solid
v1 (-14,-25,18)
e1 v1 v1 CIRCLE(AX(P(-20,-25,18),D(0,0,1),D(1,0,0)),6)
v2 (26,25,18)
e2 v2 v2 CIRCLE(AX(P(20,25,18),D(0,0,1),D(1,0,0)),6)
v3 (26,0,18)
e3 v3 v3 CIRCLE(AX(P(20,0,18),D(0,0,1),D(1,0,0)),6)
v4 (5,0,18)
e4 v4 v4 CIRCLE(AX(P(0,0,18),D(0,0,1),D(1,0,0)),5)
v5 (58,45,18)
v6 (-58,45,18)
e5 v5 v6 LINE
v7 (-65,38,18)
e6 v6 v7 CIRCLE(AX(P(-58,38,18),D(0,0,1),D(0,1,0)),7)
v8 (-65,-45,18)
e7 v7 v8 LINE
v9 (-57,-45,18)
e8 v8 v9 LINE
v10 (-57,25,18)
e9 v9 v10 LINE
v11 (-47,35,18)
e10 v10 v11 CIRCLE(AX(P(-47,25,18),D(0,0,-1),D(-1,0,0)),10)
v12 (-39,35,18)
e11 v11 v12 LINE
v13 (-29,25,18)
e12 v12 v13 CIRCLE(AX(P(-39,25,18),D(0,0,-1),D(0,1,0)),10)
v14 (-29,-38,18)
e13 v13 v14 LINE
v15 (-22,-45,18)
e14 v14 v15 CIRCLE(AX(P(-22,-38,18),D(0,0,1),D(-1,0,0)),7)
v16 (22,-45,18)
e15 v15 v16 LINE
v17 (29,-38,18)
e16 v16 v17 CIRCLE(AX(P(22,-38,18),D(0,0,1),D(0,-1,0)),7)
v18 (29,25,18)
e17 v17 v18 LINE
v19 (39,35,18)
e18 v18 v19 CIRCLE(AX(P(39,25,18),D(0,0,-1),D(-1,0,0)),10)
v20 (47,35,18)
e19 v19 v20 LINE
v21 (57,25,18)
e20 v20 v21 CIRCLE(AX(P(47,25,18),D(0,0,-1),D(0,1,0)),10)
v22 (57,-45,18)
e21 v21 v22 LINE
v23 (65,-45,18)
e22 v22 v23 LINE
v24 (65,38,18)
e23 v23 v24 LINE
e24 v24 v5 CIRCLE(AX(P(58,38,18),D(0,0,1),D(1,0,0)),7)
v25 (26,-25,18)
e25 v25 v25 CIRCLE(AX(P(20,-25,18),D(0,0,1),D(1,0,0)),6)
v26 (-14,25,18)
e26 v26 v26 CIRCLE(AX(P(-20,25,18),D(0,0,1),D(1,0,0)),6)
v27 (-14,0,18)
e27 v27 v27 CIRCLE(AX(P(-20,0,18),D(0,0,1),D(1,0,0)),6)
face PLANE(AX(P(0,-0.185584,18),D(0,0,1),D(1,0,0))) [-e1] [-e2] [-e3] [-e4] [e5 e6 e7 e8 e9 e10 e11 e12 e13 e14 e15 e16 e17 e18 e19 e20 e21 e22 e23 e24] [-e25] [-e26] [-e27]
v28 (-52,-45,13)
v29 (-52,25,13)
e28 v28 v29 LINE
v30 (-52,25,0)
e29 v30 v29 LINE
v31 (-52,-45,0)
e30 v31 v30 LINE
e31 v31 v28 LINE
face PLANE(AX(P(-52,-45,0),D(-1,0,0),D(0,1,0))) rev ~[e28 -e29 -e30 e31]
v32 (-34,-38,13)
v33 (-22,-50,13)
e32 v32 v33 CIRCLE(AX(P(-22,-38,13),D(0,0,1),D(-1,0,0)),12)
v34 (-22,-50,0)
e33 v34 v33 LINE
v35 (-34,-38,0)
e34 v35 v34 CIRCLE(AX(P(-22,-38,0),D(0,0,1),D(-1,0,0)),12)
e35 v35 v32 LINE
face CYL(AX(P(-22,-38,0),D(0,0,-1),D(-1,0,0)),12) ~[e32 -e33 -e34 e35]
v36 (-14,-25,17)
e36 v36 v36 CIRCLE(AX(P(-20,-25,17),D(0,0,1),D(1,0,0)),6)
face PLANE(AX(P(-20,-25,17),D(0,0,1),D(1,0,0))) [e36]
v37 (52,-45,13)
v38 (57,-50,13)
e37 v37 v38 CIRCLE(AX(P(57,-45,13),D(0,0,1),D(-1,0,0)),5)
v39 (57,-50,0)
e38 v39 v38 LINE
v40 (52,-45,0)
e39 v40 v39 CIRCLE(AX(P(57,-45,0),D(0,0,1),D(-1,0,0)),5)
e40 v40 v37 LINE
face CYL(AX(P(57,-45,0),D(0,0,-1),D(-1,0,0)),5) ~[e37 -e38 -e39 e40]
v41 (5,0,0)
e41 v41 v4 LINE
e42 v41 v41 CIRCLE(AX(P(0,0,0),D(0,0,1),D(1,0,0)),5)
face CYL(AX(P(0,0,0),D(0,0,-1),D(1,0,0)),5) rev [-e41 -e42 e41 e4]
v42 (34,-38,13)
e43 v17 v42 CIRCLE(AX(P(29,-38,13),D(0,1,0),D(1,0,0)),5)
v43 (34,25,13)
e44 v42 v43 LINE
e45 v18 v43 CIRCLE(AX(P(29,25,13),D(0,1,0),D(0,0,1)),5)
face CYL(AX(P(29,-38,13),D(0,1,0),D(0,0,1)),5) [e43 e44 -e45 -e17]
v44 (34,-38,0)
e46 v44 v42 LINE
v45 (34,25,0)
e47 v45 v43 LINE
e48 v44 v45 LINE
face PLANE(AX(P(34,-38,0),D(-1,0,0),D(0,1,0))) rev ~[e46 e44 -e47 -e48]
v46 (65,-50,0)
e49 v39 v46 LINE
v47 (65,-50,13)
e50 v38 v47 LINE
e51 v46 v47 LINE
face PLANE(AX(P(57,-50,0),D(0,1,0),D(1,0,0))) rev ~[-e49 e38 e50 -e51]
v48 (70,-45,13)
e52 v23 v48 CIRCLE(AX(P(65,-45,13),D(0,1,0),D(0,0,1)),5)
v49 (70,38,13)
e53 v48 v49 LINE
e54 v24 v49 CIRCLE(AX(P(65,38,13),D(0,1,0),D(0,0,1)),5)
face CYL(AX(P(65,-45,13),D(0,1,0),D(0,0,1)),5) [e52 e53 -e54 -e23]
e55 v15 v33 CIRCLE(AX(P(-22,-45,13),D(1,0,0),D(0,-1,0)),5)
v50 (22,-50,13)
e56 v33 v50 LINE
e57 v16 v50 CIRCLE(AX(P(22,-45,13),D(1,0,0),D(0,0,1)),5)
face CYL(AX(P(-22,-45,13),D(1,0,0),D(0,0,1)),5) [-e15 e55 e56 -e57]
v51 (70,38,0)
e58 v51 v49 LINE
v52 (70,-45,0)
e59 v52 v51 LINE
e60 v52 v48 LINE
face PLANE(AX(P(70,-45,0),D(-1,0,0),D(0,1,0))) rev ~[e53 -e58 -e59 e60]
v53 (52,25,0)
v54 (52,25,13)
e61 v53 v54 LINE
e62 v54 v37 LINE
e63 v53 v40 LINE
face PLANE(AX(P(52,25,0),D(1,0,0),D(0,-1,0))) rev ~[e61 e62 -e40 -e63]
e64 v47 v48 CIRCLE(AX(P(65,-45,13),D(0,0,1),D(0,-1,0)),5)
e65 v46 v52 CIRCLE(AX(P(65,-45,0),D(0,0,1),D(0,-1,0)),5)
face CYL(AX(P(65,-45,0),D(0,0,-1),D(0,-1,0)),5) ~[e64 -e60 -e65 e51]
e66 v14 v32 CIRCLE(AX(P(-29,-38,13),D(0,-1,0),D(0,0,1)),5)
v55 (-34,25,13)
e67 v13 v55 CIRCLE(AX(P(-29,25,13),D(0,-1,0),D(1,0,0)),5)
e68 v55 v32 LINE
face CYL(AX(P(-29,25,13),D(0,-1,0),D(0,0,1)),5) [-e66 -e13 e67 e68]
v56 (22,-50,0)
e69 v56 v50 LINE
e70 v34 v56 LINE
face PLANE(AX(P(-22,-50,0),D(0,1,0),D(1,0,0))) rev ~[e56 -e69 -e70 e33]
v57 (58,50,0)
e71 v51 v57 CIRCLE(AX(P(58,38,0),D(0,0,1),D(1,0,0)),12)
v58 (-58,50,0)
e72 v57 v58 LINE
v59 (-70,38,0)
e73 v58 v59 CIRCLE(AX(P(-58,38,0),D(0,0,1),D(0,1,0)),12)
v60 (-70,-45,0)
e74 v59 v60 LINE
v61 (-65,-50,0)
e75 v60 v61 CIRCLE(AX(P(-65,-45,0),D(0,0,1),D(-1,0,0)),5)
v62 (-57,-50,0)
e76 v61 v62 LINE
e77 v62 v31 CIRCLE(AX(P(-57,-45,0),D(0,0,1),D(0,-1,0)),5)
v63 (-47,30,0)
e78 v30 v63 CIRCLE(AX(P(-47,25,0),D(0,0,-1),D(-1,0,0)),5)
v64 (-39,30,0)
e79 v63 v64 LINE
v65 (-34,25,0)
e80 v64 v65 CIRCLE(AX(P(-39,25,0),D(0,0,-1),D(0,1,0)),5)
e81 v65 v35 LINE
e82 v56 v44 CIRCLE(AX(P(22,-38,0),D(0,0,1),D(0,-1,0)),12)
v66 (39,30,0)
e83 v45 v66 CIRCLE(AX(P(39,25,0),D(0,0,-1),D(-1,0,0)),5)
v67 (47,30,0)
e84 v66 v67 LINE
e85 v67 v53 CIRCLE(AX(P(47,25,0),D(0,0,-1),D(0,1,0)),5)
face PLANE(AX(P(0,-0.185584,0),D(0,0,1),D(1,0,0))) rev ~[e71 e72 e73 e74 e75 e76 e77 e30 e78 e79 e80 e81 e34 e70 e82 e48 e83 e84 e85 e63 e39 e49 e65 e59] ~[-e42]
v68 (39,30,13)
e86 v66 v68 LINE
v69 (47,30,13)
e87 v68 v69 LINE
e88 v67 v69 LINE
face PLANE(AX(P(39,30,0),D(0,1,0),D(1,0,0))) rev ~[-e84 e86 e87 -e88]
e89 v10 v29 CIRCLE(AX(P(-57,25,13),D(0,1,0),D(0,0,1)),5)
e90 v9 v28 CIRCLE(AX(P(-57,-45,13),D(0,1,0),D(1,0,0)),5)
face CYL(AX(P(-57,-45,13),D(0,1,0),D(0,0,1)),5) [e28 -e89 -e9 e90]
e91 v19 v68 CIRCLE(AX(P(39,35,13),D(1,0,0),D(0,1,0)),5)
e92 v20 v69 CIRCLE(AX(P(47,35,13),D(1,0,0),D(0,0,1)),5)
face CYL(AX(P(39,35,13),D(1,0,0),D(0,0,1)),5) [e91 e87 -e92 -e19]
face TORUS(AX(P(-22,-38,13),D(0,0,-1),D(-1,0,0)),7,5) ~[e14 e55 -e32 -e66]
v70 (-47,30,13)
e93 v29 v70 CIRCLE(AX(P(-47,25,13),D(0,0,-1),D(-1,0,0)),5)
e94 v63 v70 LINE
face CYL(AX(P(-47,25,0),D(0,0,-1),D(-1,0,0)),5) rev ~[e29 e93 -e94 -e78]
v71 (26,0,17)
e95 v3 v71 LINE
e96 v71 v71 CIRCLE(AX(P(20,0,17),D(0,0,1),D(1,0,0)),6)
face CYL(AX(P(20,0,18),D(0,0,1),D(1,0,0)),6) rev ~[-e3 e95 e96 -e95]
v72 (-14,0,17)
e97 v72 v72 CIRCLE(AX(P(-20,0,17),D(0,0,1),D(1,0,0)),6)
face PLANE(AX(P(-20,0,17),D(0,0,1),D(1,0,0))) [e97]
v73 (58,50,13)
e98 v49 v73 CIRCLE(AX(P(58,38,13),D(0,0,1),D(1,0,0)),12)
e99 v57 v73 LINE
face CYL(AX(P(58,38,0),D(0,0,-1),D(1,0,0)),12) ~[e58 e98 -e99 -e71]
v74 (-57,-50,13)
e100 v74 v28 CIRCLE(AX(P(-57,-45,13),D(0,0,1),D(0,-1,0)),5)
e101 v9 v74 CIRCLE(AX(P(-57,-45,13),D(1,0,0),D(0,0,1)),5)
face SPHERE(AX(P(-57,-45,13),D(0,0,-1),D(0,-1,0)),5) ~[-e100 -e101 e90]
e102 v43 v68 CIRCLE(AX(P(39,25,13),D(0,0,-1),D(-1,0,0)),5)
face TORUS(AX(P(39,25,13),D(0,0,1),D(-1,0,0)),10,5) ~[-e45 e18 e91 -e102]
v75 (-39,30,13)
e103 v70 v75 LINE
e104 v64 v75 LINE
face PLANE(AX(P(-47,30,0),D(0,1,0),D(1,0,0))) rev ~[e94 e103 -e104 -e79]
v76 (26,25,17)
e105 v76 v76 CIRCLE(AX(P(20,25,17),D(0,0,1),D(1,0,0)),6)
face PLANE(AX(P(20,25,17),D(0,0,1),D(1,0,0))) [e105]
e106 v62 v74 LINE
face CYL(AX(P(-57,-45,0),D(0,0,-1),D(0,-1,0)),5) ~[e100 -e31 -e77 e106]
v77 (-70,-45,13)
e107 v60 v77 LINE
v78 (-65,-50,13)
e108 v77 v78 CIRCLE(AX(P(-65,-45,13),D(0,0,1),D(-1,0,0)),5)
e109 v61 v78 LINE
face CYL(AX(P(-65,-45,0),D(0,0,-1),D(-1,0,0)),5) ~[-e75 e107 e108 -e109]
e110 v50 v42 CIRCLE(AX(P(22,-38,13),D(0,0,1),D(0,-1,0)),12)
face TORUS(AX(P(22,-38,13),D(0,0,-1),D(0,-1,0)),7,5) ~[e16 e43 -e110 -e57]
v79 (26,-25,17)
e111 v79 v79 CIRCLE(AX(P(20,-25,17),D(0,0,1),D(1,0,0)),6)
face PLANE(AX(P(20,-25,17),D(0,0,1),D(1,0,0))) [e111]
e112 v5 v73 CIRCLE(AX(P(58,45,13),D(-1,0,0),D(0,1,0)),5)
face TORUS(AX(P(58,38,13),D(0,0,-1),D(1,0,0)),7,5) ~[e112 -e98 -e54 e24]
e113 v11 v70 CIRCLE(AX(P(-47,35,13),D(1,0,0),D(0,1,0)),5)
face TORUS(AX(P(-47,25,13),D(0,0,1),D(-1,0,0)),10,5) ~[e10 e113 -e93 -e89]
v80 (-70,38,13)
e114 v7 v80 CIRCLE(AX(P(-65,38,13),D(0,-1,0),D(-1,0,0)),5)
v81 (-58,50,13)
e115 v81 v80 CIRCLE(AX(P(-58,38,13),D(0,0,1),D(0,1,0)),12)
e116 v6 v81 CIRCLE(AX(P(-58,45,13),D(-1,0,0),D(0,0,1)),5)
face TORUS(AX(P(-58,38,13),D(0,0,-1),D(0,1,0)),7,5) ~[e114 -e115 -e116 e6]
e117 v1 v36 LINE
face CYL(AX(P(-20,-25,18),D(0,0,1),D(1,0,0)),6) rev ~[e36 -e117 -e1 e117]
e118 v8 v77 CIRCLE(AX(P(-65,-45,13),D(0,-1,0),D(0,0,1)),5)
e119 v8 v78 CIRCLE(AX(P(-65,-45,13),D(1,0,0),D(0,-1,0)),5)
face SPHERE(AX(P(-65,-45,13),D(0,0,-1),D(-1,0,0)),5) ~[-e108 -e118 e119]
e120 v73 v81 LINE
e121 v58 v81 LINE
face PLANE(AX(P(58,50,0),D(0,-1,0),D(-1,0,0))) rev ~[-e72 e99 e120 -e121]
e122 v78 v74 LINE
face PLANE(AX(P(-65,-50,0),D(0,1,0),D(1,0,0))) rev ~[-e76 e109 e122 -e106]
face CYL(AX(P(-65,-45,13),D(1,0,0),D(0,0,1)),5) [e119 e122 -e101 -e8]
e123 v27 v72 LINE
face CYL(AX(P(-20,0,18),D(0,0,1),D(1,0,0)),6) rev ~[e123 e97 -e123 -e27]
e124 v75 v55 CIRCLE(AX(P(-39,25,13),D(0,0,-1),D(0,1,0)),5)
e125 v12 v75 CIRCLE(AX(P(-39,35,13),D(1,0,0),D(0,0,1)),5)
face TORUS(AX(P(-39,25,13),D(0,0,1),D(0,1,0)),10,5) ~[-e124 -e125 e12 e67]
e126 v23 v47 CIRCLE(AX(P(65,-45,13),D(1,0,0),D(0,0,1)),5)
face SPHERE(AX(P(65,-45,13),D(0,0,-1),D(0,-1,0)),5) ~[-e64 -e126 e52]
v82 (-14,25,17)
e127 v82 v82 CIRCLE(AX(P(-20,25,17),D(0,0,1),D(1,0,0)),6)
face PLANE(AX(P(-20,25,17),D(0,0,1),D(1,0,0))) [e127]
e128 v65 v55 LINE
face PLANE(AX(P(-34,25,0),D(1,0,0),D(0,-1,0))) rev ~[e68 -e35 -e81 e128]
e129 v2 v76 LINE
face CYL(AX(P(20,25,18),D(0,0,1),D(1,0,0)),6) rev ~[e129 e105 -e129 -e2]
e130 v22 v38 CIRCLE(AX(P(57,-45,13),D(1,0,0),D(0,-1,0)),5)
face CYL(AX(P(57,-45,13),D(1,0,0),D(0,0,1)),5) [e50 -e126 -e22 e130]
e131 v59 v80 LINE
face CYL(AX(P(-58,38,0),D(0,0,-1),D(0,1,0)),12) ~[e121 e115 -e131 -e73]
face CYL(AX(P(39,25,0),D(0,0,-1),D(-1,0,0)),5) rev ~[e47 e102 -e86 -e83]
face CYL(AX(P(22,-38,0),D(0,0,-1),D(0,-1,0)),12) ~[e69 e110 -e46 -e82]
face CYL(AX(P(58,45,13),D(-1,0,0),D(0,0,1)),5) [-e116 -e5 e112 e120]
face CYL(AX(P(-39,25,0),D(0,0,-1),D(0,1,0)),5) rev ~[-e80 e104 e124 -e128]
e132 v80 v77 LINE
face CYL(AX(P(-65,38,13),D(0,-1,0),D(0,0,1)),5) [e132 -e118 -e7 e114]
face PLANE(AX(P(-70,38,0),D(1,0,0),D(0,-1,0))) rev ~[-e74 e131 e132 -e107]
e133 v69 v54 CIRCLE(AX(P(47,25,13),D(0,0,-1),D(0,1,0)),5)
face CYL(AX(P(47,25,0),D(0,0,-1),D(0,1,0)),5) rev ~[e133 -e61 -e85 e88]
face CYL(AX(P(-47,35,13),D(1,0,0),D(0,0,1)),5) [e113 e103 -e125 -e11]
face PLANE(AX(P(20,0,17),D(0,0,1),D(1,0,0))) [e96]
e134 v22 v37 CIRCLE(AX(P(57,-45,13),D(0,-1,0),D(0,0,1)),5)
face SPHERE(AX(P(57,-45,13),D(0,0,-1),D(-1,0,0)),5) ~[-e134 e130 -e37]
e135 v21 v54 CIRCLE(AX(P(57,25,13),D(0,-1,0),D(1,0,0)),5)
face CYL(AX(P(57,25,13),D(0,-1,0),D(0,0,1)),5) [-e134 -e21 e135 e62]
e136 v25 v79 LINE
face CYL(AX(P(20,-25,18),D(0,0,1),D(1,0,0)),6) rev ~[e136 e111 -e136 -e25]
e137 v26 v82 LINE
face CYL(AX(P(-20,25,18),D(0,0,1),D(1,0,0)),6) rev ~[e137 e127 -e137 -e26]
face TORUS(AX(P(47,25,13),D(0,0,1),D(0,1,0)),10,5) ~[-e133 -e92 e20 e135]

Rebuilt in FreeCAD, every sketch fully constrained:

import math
import FreeCAD as App
import Part
import Sketcher
from FreeCAD import Vector
Q = App.Units.Quantity


def edges_at(feature, points):
    """Names of the edges that pass closest to the given points."""
    edges = feature.Shape.Edges
    near = lambda p: min(range(len(edges)), key=lambda i: edges[i].distToShape(Part.Vertex(*p))[0])
    return sorted({f"Edge{near(p) + 1}" for p in points})

doc = App.newDocument("Part")
body = doc.addObject("PartDesign::Body", "Body")

sketch1 = doc.addObject("Sketcher::SketchObject", "Sketch")
body.addObject(sketch1)
sketch1.AttachmentSupport = (doc.XY_Plane, [""])
sketch1.MapMode = "FlatFace"
sketch1.addGeometry([
    Part.ArcOfCircle(Part.Circle(Vector(22, -38, 0), Vector(0, 0, 1), 12), math.radians(-90), math.radians(0)),
    Part.LineSegment(Vector(34, -38, 0), Vector(34, 25, 0)),
    Part.ArcOfCircle(Part.Circle(Vector(39, 25, 0), Vector(0, 0, 1), 5), math.radians(90), math.radians(180)),
    Part.LineSegment(Vector(39, 30, 0), Vector(47, 30, 0)),
    Part.ArcOfCircle(Part.Circle(Vector(47, 25, 0), Vector(0, 0, 1), 5), math.radians(0), math.radians(90)),
    Part.LineSegment(Vector(52, 25, 0), Vector(52, -45, 0)),
    Part.ArcOfCircle(Part.Circle(Vector(57, -45, 0), Vector(0, 0, 1), 5), math.radians(180), math.radians(270)),
    Part.LineSegment(Vector(57, -50, 0), Vector(65, -50, 0)),
    Part.ArcOfCircle(Part.Circle(Vector(65, -45, 0), Vector(0, 0, 1), 5), math.radians(-90), math.radians(0)),
    Part.LineSegment(Vector(70, -45, 0), Vector(70, 38, 0)),
    Part.ArcOfCircle(Part.Circle(Vector(58, 38, 0), Vector(0, 0, 1), 12), math.radians(0), math.radians(90)),
    Part.LineSegment(Vector(58, 50, 0), Vector(-58, 50, 0)),
    Part.ArcOfCircle(Part.Circle(Vector(-58, 38, 0), Vector(0, 0, 1), 12), math.radians(90), math.radians(180)),
    Part.LineSegment(Vector(-70, 38, 0), Vector(-70, -45, 0)),
    Part.ArcOfCircle(Part.Circle(Vector(-65, -45, 0), Vector(0, 0, 1), 5), math.radians(180), math.radians(270)),
    Part.LineSegment(Vector(-65, -50, 0), Vector(-57, -50, 0)),
    Part.ArcOfCircle(Part.Circle(Vector(-57, -45, 0), Vector(0, 0, 1), 5), math.radians(-90), math.radians(0)),
    Part.LineSegment(Vector(-52, -45, 0), Vector(-52, 25, 0)),
    Part.ArcOfCircle(Part.Circle(Vector(-47, 25, 0), Vector(0, 0, 1), 5), math.radians(90), math.radians(180)),
    Part.LineSegment(Vector(-47, 30, 0), Vector(-39, 30, 0)),
    Part.ArcOfCircle(Part.Circle(Vector(-39, 25, 0), Vector(0, 0, 1), 5), math.radians(0), math.radians(90)),
    Part.LineSegment(Vector(-34, 25, 0), Vector(-34, -38, 0)),
    Part.ArcOfCircle(Part.Circle(Vector(-22, -38, 0), Vector(0, 0, 1), 12), math.radians(180), math.radians(270)),
    Part.LineSegment(Vector(-22, -50, 0), Vector(22, -50, 0)),
    Part.Circle(Vector(0, 0, 0), Vector(0, 0, 1), 5),
], False)
sketch1.addConstraint([
    Sketcher.Constraint("Tangent", 0, 2, 1, 1),
    Sketcher.Constraint("Tangent", 1, 2, 2, 2),
    Sketcher.Constraint("Tangent", 2, 1, 3, 1),
    Sketcher.Constraint("Tangent", 3, 2, 4, 2),
    Sketcher.Constraint("Tangent", 4, 1, 5, 1),
    Sketcher.Constraint("Tangent", 5, 2, 6, 1),
    Sketcher.Constraint("Tangent", 6, 2, 7, 1),
    Sketcher.Constraint("Tangent", 7, 2, 8, 1),
    Sketcher.Constraint("Tangent", 8, 2, 9, 1),
    Sketcher.Constraint("Tangent", 9, 2, 10, 1),
    Sketcher.Constraint("Tangent", 10, 2, 11, 1),
    Sketcher.Constraint("Tangent", 11, 2, 12, 1),
    Sketcher.Constraint("Tangent", 12, 2, 13, 1),
    Sketcher.Constraint("Tangent", 13, 2, 14, 1),
    Sketcher.Constraint("Tangent", 14, 2, 15, 1),
    Sketcher.Constraint("Tangent", 15, 2, 16, 1),
    Sketcher.Constraint("Tangent", 16, 2, 17, 1),
    Sketcher.Constraint("Tangent", 17, 2, 18, 2),
    Sketcher.Constraint("Tangent", 18, 1, 19, 1),
    Sketcher.Constraint("Tangent", 19, 2, 20, 2),
    Sketcher.Constraint("Tangent", 20, 1, 21, 1),
    Sketcher.Constraint("Tangent", 21, 2, 22, 1),
    Sketcher.Constraint("Tangent", 22, 2, 23, 1),
    Sketcher.Constraint("Tangent", 23, 2, 0, 1),
    Sketcher.Constraint("Vertical", 1),
    Sketcher.Constraint("Horizontal", 3),
    Sketcher.Constraint("Vertical", 5),
    Sketcher.Constraint("Horizontal", 7),
    Sketcher.Constraint("Vertical", 9),
    Sketcher.Constraint("Horizontal", 11),
    Sketcher.Constraint("Vertical", 13),
    Sketcher.Constraint("Horizontal", 15),
    Sketcher.Constraint("Vertical", 17),
    Sketcher.Constraint("Horizontal", 19),
    Sketcher.Constraint("Vertical", 21),
    Sketcher.Constraint("Horizontal", 23),
    Sketcher.Constraint("Coincident", 24, 3, -1, 1),
    Sketcher.Constraint("Equal", 2, 4),
    Sketcher.Constraint("Equal", 4, 6),
    Sketcher.Constraint("Equal", 6, 8),
    Sketcher.Constraint("Equal", 0, 10),
    Sketcher.Constraint("Equal", 10, 12),
    Sketcher.Constraint("Equal", 8, 14),
    Sketcher.Constraint("Equal", 14, 16),
    Sketcher.Constraint("Equal", 16, 18),
    Sketcher.Constraint("Equal", 18, 20),
    Sketcher.Constraint("Equal", 12, 22),
    Sketcher.Constraint("Equal", 20, 24),
    Sketcher.Constraint("Symmetric", 8, 3, 14, 3, -2),
    Sketcher.Constraint("Symmetric", 4, 3, 18, 3, -2),
    Sketcher.Constraint("Horizontal", 15, 2, 22, 2),
    Sketcher.Constraint("Equal", 3, 7),
    Sketcher.Constraint("Equal", 15, 19),
    Sketcher.Constraint("Diameter", 24, Q("10 mm")),
    Sketcher.Constraint("Radius", 0, Q("12 mm")),
    Sketcher.Constraint("DistanceX", 3, 1, 3, 2, Q("8 mm")),
    Sketcher.Constraint("DistanceX", 11, 2, 11, 1, Q("116 mm")),
    Sketcher.Constraint("DistanceY", 1, 1, 1, 2, Q("63 mm")),
    Sketcher.Constraint("DistanceY", 9, 1, 9, 2, Q("83 mm")),
    Sketcher.Constraint("DistanceY", 0, 3, -1, 1, Q("38 mm")),
])
pad1 = doc.addObject("PartDesign::Pad", "Pad")
body.addObject(pad1)
pad1.Profile = sketch1
pad1.Length = 18

sketch2 = doc.addObject("Sketcher::SketchObject", "Sketch001")
body.addObject(sketch2)
sketch2.AttachmentSupport = (doc.XY_Plane, [""])
sketch2.MapMode = "FlatFace"
sketch2.AttachmentOffset = App.Placement(Vector(0, 0, 18), App.Rotation())
sketch2.addGeometry([
    Part.Circle(Vector(20, 0, 0), Vector(0, 0, 1), 6),
    Part.Circle(Vector(20, 25, 0), Vector(0, 0, 1), 6),
    Part.Circle(Vector(20, -25, 0), Vector(0, 0, 1), 6),
    Part.Circle(Vector(-20, 25, 0), Vector(0, 0, 1), 6),
    Part.Circle(Vector(-20, 0, 0), Vector(0, 0, 1), 6),
    Part.Circle(Vector(-20, -25, 0), Vector(0, 0, 1), 6),
], False)
sketch2.addConstraint([
    Sketcher.Constraint("Equal", 0, 1),
    Sketcher.Constraint("Equal", 1, 2),
    Sketcher.Constraint("Equal", 2, 3),
    Sketcher.Constraint("Equal", 3, 4),
    Sketcher.Constraint("Equal", 4, 5),
    Sketcher.Constraint("Symmetric", 2, 3, 3, 3, -1, 1),
    Sketcher.Constraint("Symmetric", 0, 3, 4, 3, -1, 1),
    Sketcher.Constraint("Symmetric", 1, 3, 5, 3, -1, 1),
    Sketcher.Constraint("Symmetric", 1, 3, 3, 3, -2),
    Sketcher.Constraint("PointOnObject", 0, 3, -1),
    Sketcher.Constraint("Vertical", 0, 3, 1, 3),
    Sketcher.Constraint("Diameter", 0, Q("12 mm")),
    Sketcher.Constraint("DistanceX", -1, 1, 0, 3, Q("20 mm")),
    Sketcher.Constraint("DistanceY", -1, 1, 1, 3, Q("25 mm")),
])
pocket1 = doc.addObject("PartDesign::Pocket", "Pocket")
body.addObject(pocket1)
pocket1.Profile = sketch2
pocket1.Length = 1
doc.recompute()

fillet = doc.addObject("PartDesign::Fillet", "Fillet")
body.addObject(fillet)
fillet.Base = (pocket1, edges_at(pocket1, [(70, -3.5, 18)]))
fillet.Radius = 5

doc.recompute()
